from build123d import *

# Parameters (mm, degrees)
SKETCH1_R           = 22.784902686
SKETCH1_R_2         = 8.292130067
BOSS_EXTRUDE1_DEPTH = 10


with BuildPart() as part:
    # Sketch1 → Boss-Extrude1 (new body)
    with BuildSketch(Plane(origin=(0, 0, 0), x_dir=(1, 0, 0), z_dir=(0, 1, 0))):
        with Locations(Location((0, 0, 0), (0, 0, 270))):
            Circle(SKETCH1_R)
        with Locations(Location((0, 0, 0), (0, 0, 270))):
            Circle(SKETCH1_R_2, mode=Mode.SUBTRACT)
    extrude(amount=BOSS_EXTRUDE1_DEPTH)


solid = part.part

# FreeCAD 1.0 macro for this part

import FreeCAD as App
import Part
import Sketcher
Q = App.Units.Quantity

doc = App.newDocument("Part")
body = doc.addObject("PartDesign::Body", "Body")

# Sketch on XZ plane
sketch1 = doc.addObject("Sketcher::SketchObject", "Sketch")
body.addObject(sketch1)
sketch1.AttachmentSupport = (doc.XZ_Plane, [""])
sketch1.MapMode = "FlatFace"
sketch1.addGeometry([
    Part.Circle(App.Vector(0, 0, 0), App.Vector(0, 0, 1), 22.784903),
    Part.Circle(App.Vector(0, 0, 0), App.Vector(0, 0, 1), 8.29213),
], False)
sketch1.addConstraint([
    Sketcher.Constraint("Coincident", 0, 3, -1, 1),
    Sketcher.Constraint("Coincident", 1, 3, -1, 1),
    Sketcher.Constraint("Diameter", 1, Q("16.58426 mm")),
    Sketcher.Constraint("Diameter", 0, Q("45.569805 mm")),
])
pad1 = doc.addObject("PartDesign::Pad", "Pad")
body.addObject(pad1)
pad1.Profile = sketch1
pad1.Length = 10
pad1.Reversed = True

doc.recompute()
